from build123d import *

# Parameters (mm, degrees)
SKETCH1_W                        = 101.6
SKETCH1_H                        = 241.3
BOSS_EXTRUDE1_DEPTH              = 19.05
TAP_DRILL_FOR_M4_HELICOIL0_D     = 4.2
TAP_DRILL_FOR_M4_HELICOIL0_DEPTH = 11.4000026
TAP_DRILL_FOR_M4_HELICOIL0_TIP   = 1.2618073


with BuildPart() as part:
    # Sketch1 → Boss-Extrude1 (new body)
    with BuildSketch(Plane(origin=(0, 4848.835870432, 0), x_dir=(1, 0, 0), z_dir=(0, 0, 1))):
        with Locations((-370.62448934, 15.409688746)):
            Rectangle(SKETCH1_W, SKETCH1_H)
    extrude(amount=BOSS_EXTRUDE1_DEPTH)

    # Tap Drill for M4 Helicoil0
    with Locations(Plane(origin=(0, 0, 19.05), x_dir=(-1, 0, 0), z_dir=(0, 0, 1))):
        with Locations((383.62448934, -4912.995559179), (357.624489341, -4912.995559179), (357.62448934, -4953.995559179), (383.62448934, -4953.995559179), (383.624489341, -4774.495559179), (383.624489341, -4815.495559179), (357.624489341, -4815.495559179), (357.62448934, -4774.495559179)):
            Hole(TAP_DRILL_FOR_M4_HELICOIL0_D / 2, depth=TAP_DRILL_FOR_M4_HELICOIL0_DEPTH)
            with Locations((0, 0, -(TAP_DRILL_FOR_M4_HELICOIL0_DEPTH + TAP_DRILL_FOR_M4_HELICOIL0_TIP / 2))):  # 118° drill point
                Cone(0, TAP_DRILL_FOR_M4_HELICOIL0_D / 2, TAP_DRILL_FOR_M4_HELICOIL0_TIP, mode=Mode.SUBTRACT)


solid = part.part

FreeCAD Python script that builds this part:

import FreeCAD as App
import Part
import Sketcher
from FreeCAD import Vector
Q = App.Units.Quantity

doc = App.newDocument("Part")
body = doc.addObject("PartDesign::Body", "Body")

# Sketch on XY plane
sketch1 = body.newObject("Sketcher::SketchObject", "Sketch")
sketch1.AttachmentSupport = (doc.getObject("XY_Plane"), [""])
sketch1.MapMode = "FlatFace"
sketch1.addGeometry([
    Part.LineSegment(Vector(-421, 4985, 0), Vector(-421, 4744, 0)),
    Part.LineSegment(Vector(-421, 4744, 0), Vector(-320, 4744, 0)),
    Part.LineSegment(Vector(-320, 4744, 0), Vector(-320, 4985, 0)),
    Part.LineSegment(Vector(-320, 4985, 0), Vector(-421, 4985, 0)),
], False)
sketch1.addConstraint([
    Sketcher.Constraint("Coincident", 0, 2, 1, 1),
    Sketcher.Constraint("Coincident", 1, 2, 2, 1),
    Sketcher.Constraint("Coincident", 2, 2, 3, 1),
    Sketcher.Constraint("Coincident", 3, 2, 0, 1),
    Sketcher.Constraint("Vertical", 0),
    Sketcher.Constraint("Horizontal", 1),
    Sketcher.Constraint("Vertical", 2),
    Sketcher.Constraint("Horizontal", 3),
    Sketcher.Constraint("DistanceX", 1, 1, 1, 2, Q("4 in")),
    Sketcher.Constraint("DistanceY", 0, 2, 0, 1, Q("9.5 in")),
    Sketcher.Constraint("DistanceX", 0, 2, -1, 1, 421.424489),
    Sketcher.Constraint("DistanceY", -1, 1, 0, 2, 4743.595559),
])
pad1 = body.newObject("PartDesign::Pad", "Pad")
pad1.Profile = sketch1
pad1.Length = Q("0.75 in")

# Sketch on XY plane
sketch2 = body.newObject("Sketcher::SketchObject", "Sketch001")
sketch2.AttachmentSupport = (doc.getObject("XY_Plane"), [""])
sketch2.MapMode = "FlatFace"
sketch2.AttachmentOffset = App.Placement(Vector(0, 0, 0.75 * 25.4), App.Rotation())
sketch2.addGeometry([
    Part.Circle(Vector(-383.6, 4913, 0), Vector(0, 0, 1), 2.1),  # 0
    Part.Circle(Vector(-357.6, 4913, 0), Vector(0, 0, 1), 2.1),  # 1
    Part.Circle(Vector(-357.6, 4954, 0), Vector(0, 0, 1), 2.1),  # 2
    Part.Circle(Vector(-383.6, 4954, 0), Vector(0, 0, 1), 2.1),  # 3
    Part.Circle(Vector(-383.6, 4774.5, 0), Vector(0, 0, 1), 2.1),  # 4
    Part.Circle(Vector(-383.6, 4815.5, 0), Vector(0, 0, 1), 2.1),  # 5
    Part.Circle(Vector(-357.6, 4815.5, 0), Vector(0, 0, 1), 2.1),  # 6
    Part.Circle(Vector(-357.6, 4774.5, 0), Vector(0, 0, 1), 2.1),  # 7
], False)
sketch2.addConstraint([
    Sketcher.Constraint("Equal", 0, 1),
    Sketcher.Constraint("Equal", 1, 2),
    Sketcher.Constraint("Equal", 2, 3),
    Sketcher.Constraint("Equal", 3, 4),
    Sketcher.Constraint("Equal", 4, 5),
    Sketcher.Constraint("Equal", 5, 6),
    Sketcher.Constraint("Equal", 6, 7),
    Sketcher.Constraint("Horizontal", 0, 3, 1, 3),
    Sketcher.Constraint("Horizontal", 2, 3, 3, 3),
    Sketcher.Constraint("Horizontal", 5, 3, 6, 3),
    Sketcher.Constraint("Horizontal", 4, 3, 7, 3),
    Sketcher.Constraint("Vertical", 1, 3, 2, 3),
    Sketcher.Constraint("Vertical", 0, 3, 3, 3),
    Sketcher.Constraint("Vertical", 3, 3, 4, 3),
    Sketcher.Constraint("Vertical", 4, 3, 5, 3),
    Sketcher.Constraint("Vertical", 2, 3, 6, 3),
    Sketcher.Constraint("Vertical", 6, 3, 7, 3),
    Sketcher.Constraint("Diameter", 0, 4.2),
    Sketcher.Constraint("DistanceX", 0, 3, 1, 3, 26.0),
    Sketcher.Constraint("DistanceY", 1, 3, 2, 3, 41.0),
    Sketcher.Constraint("DistanceY", 4, 3, 0, 3, 138.5),
    Sketcher.Constraint("DistanceY", 4, 3, 5, 3, 41.0),
    Sketcher.Constraint("DistanceX", 0, 3, -1, 1, 383.624489),
    Sketcher.Constraint("DistanceY", -1, 1, 0, 3, 4912.995559),
])
doc.recompute()
hole = body.newObject("PartDesign::Hole", "Hole")
hole.Profile = sketch2
hole.ThreadType = "None"
hole.Diameter = 4.2
hole.DepthType = "Dimension"
hole.Depth = 11.400003
hole.DrillPoint = "Angled"
hole.DrillPointAngle = 118

doc.recompute()
